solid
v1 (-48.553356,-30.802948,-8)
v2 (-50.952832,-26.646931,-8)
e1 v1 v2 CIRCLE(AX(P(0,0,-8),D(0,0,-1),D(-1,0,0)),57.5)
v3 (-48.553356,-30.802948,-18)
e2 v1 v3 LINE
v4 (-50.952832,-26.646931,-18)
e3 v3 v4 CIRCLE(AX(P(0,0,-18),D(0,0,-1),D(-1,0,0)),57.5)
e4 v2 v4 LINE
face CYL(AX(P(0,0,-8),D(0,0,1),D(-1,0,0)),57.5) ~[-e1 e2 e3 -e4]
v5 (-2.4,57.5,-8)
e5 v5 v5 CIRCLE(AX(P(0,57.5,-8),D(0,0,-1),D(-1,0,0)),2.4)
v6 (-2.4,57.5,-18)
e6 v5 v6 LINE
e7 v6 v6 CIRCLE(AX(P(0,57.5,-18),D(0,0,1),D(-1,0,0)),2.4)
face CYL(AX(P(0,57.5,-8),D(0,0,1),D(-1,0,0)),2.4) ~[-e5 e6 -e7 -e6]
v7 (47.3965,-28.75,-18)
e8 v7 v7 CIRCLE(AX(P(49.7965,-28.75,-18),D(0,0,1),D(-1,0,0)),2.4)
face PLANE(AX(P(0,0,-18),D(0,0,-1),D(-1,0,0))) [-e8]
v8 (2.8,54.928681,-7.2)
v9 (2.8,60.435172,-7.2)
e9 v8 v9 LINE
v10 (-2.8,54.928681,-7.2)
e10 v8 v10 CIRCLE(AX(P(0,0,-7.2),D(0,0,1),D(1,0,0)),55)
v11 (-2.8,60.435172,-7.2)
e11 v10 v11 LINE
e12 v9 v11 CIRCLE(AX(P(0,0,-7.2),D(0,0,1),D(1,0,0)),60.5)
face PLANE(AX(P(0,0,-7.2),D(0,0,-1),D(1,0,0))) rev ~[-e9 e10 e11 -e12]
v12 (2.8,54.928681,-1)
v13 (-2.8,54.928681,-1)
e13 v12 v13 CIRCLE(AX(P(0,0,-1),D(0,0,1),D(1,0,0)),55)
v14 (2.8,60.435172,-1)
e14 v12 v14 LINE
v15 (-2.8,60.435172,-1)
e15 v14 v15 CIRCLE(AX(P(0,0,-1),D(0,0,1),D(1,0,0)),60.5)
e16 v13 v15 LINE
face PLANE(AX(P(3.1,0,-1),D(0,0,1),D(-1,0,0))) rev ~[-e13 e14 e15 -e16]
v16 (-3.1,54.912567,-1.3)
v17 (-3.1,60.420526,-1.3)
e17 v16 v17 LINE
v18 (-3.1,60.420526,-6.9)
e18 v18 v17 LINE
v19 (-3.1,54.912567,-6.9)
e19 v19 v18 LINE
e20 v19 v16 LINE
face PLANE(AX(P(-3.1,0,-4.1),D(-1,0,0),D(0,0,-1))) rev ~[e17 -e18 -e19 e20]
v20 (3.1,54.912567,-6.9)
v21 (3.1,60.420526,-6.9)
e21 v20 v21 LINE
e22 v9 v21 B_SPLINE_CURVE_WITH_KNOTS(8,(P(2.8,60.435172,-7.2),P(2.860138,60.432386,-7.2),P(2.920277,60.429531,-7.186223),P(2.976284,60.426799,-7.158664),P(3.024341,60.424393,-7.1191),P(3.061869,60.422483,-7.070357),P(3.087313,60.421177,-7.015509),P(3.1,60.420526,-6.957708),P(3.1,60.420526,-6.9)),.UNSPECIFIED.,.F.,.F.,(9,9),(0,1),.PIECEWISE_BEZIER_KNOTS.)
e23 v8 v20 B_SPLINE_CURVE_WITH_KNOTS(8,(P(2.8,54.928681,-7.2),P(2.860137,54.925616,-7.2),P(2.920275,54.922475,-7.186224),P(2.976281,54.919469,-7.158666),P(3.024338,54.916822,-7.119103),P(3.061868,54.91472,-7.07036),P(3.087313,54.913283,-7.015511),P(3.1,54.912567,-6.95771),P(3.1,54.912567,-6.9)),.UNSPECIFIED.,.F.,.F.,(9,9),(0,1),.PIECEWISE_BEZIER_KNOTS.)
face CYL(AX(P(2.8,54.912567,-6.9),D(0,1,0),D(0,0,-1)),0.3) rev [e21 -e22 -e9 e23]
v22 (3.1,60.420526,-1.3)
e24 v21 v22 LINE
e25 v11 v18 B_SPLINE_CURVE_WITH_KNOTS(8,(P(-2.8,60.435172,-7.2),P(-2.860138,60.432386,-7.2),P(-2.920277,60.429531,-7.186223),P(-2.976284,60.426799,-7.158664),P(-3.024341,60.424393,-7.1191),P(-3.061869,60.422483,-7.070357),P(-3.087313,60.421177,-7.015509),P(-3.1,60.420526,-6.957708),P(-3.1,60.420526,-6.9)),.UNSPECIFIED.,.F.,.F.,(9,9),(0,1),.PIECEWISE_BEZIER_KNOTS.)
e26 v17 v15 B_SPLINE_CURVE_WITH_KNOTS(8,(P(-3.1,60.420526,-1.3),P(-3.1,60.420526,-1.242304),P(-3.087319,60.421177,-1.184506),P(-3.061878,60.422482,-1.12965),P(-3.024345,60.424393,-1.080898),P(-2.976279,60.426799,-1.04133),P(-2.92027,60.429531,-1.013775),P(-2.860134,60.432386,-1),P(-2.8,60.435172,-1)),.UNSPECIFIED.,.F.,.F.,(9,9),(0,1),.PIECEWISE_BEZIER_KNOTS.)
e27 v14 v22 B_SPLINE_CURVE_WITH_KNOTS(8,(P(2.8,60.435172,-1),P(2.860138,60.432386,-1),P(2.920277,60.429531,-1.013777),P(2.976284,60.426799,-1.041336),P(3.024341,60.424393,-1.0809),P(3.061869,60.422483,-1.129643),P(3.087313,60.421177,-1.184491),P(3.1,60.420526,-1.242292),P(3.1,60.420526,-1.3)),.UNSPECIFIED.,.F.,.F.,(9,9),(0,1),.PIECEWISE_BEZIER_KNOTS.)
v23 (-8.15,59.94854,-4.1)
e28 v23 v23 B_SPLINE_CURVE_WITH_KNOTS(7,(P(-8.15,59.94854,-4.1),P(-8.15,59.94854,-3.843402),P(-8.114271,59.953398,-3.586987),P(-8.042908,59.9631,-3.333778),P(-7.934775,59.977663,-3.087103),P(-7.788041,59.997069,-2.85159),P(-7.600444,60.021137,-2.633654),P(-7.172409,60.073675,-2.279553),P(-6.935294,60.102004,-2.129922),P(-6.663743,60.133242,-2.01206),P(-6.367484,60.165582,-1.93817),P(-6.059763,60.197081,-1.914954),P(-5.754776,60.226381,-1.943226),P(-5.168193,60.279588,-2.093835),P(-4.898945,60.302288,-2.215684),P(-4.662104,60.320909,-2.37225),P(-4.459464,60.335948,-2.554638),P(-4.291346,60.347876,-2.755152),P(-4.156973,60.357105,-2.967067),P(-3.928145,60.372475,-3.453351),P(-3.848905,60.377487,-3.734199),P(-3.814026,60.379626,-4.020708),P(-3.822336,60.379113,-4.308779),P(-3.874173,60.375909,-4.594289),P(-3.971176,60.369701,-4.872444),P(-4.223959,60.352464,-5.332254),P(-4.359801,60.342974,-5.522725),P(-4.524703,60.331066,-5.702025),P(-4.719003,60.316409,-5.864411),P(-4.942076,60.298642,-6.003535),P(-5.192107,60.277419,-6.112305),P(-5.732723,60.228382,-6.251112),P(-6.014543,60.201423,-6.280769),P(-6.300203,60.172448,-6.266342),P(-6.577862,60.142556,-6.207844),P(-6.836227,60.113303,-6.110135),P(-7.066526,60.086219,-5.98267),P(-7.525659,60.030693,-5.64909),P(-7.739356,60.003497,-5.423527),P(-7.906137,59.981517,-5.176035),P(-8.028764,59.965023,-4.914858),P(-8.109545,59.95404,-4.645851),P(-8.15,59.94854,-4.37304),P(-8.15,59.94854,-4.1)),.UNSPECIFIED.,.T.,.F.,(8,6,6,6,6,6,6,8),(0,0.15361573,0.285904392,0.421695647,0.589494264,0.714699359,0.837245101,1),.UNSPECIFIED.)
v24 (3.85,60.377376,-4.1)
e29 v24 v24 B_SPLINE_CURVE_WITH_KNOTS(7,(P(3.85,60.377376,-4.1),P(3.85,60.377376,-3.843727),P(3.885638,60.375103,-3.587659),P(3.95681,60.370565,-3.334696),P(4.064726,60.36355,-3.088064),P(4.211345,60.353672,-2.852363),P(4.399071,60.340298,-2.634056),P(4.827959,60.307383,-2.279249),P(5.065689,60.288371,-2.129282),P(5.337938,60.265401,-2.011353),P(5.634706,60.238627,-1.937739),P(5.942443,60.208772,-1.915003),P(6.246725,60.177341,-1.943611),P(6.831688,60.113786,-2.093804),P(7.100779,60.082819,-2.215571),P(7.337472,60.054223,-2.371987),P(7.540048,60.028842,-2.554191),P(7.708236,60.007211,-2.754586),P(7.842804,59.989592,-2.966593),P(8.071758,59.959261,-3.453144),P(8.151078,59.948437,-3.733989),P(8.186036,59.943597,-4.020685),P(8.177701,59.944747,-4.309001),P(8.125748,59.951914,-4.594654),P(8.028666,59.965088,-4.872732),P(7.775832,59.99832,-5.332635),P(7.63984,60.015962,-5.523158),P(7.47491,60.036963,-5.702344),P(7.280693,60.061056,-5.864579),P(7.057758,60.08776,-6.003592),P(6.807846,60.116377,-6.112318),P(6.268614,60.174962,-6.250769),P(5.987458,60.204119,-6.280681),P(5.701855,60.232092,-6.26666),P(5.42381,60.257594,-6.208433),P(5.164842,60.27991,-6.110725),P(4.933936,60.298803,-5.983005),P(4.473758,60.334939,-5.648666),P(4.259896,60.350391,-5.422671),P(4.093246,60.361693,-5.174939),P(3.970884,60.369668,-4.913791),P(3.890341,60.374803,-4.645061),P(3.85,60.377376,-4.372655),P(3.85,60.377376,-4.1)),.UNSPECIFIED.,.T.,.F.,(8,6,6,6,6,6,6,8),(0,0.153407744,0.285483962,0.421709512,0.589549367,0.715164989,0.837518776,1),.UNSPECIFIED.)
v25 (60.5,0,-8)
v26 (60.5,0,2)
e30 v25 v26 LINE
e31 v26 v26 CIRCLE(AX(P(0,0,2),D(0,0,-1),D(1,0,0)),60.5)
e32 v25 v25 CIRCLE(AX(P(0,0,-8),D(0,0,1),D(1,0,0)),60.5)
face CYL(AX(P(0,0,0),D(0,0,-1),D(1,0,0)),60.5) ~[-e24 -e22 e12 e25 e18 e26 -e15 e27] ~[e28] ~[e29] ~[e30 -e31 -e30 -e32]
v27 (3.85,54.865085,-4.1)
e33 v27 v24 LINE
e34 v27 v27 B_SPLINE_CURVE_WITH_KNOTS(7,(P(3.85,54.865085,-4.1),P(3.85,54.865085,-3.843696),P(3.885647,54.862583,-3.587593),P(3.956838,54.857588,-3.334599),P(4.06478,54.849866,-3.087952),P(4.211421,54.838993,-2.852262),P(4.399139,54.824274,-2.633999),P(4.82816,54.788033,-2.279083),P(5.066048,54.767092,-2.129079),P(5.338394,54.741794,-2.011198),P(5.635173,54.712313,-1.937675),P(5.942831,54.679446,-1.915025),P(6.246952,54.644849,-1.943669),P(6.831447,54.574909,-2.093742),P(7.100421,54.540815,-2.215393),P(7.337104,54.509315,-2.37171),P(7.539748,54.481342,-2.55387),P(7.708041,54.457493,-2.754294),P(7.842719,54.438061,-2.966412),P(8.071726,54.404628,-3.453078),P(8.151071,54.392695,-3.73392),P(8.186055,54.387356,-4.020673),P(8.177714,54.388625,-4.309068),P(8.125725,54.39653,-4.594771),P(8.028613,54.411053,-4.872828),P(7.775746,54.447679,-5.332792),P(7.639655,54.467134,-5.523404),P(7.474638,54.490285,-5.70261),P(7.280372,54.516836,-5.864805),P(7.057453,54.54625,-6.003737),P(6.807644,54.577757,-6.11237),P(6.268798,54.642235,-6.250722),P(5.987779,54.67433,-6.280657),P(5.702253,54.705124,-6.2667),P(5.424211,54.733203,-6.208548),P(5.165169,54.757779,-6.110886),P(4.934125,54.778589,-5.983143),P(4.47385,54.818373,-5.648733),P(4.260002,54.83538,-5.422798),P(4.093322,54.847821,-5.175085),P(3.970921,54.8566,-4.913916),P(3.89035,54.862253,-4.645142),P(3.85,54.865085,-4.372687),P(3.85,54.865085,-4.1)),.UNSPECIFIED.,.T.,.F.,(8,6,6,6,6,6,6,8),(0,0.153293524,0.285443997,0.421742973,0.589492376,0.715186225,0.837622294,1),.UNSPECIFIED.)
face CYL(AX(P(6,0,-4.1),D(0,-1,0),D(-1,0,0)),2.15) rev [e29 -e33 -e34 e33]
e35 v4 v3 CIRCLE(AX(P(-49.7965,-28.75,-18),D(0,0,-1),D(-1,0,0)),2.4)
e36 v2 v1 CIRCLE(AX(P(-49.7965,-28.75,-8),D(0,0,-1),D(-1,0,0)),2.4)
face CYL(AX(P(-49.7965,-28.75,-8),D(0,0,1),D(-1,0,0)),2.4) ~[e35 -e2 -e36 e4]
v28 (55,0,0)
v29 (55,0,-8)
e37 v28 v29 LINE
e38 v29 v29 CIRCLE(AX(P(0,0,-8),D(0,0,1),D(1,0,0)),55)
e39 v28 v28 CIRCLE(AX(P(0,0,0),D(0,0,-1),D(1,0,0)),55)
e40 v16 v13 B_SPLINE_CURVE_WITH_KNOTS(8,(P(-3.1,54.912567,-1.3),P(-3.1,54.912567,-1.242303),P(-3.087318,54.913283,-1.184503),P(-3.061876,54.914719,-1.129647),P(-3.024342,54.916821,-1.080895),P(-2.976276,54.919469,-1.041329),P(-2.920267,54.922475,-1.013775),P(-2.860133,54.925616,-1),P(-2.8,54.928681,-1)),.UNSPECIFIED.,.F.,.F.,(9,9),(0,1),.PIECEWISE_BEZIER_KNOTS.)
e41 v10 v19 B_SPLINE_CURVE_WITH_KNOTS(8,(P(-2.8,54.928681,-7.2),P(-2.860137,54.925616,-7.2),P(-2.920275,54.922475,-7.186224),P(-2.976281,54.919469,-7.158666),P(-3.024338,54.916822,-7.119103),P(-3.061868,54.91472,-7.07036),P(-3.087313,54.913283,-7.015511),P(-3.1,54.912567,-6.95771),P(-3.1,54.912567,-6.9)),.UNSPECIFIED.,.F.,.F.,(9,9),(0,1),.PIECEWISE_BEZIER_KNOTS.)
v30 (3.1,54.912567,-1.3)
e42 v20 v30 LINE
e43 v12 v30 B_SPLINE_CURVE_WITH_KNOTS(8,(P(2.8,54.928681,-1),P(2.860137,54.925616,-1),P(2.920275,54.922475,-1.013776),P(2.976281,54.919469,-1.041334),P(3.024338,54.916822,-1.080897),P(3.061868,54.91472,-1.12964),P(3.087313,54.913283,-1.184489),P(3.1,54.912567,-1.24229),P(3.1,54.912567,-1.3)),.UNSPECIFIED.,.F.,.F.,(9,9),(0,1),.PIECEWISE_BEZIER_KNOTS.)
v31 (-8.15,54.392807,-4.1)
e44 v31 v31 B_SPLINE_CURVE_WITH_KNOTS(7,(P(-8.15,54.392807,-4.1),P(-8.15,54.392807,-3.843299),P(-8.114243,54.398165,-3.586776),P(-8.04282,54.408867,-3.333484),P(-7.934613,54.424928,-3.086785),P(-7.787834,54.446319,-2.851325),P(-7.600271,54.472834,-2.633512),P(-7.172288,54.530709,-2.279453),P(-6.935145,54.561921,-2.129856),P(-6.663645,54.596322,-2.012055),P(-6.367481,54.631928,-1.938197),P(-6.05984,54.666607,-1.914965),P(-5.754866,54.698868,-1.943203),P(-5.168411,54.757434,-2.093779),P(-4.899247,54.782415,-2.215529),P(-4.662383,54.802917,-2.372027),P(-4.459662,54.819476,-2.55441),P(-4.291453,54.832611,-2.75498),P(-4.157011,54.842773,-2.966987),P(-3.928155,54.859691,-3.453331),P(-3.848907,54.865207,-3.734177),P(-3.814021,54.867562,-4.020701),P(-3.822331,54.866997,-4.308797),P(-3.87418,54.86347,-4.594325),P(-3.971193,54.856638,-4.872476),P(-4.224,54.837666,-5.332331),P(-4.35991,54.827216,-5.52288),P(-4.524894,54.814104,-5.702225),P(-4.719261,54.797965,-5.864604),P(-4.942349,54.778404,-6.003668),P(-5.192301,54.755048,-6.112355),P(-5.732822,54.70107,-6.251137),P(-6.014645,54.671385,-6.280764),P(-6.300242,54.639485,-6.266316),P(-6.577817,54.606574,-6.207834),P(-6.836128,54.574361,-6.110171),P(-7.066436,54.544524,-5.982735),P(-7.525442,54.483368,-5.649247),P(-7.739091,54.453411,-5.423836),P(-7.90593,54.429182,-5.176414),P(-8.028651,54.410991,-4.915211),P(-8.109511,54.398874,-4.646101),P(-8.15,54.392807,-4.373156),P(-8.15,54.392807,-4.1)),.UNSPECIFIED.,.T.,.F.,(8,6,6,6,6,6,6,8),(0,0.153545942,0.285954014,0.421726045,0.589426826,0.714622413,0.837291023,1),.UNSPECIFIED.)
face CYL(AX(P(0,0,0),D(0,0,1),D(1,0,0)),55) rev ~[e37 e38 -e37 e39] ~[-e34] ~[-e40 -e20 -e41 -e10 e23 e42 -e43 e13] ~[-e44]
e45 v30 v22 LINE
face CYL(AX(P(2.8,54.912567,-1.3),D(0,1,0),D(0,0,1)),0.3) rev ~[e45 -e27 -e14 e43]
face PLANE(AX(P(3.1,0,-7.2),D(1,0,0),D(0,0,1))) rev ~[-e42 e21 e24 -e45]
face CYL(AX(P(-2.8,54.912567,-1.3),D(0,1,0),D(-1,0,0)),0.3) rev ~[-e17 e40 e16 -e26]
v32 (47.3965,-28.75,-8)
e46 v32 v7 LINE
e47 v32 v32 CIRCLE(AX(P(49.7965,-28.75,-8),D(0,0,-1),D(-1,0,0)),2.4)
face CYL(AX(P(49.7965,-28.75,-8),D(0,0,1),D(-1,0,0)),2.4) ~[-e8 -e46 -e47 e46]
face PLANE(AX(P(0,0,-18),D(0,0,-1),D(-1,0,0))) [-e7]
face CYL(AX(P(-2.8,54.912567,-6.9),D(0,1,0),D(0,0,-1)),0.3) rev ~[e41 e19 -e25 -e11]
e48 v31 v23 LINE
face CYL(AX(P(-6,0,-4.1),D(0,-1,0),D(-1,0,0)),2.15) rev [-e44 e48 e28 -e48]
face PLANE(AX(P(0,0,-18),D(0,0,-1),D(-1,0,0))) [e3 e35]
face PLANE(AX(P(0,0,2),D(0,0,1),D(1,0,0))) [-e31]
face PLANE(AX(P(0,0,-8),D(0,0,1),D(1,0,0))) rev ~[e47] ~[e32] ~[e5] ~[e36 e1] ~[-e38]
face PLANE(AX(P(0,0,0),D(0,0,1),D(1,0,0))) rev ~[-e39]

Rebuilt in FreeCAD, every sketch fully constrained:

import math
import FreeCAD as App
import Part
import Sketcher
Q = App.Units.Quantity


def edges_at(feature, points):
    """Names of the edges that pass closest to the given points."""
    edges = feature.Shape.Edges
    near = lambda p: min(range(len(edges)), key=lambda i: edges[i].distToShape(Part.Vertex(*p))[0])
    return sorted({f"Edge{near(p) + 1}" for p in points})


def add_polygon(sketch, points):
    """Adds a closed chain of lines whose ends are joined by coincident constraints."""
    first, n = sketch.GeometryCount, len(points)
    for a, b in zip(points, points[1:] + points[:1]):
        sketch.addGeometry(Part.LineSegment(App.Vector(*a, 0), App.Vector(*b, 0)), False)
    for i in range(n):
        sketch.addConstraint(Sketcher.Constraint("Coincident", first + i, 2, first + (i + 1) % n, 1))

doc = App.newDocument("Part")
body = doc.addObject("PartDesign::Body", "Body")

# Sketch on XY plane
sketch1 = body.newObject("Sketcher::SketchObject", "Sketch")
sketch1.AttachmentSupport = (doc.getObject("XY_Plane"), [""])
sketch1.MapMode = "FlatFace"
sketch1.addGeometry(Part.Circle(App.Vector(0, 0, 0), App.Vector(0, 0, 1), 60), False)
sketch1.addConstraint([
    Sketcher.Constraint("Coincident", 0, 3, -1, 1),
    Sketcher.Constraint("Diameter", 0, Q("121 mm")),
])
pad1 = body.newObject("PartDesign::Pad", "Pad")
pad1.Profile = sketch1
pad1.Length = 2

# Sketch on XY plane
sketch2 = body.newObject("Sketcher::SketchObject", "Sketch001")
sketch2.AttachmentSupport = (doc.getObject("XY_Plane"), [""])
sketch2.MapMode = "FlatFace"
sketch2.addGeometry([
    Part.Circle(App.Vector(0, 0, 0), App.Vector(0, 0, 1), 60),
    Part.Circle(App.Vector(0, 0, 0), App.Vector(0, 0, 1), 55),
], False)
sketch2.addConstraint([
    Sketcher.Constraint("Coincident", 0, 3, -1, 1),
    Sketcher.Constraint("Coincident", 1, 3, -1, 1),
    Sketcher.Constraint("Diameter", 0, Q("121 mm")),
    Sketcher.Constraint("Diameter", 1, Q("110 mm")),
])
pad2 = body.newObject("PartDesign::Pad", "Pad001")
pad2.Profile = sketch2
pad2.Length = 8
pad2.Reversed = True

# Sketch on XZ plane
sketch3 = body.newObject("Sketcher::SketchObject", "Sketch002")
sketch3.AttachmentSupport = (doc.getObject("XZ_Plane"), [""])
sketch3.MapMode = "FlatFace"
add_polygon(sketch3, [(3.1, -7.2), (-3.1, -7.2), (-3.1, -1), (3.1, -1)])  # lines 0-3
sketch3.addGeometry(Part.Circle(App.Vector(6, -4.1, 0), App.Vector(0, 0, 1), 2.1), False)  # 4
sketch3.addGeometry(Part.Circle(App.Vector(-6, -4.1, 0), App.Vector(0, 0, 1), 2.1), False)  # 5
sketch3.addConstraint([
    Sketcher.Constraint("Horizontal", 0),
    Sketcher.Constraint("Vertical", 1),
    Sketcher.Constraint("Horizontal", 2),
    Sketcher.Constraint("Vertical", 3),
    Sketcher.Constraint("Equal", 4, 5),
    Sketcher.Constraint("Symmetric", 4, 3, 5, 3, -2),
    Sketcher.Constraint("Equal", 2, 1),
    Sketcher.Constraint("Diameter", 4, Q("4.3 mm")),
    Sketcher.Constraint("DistanceX", 0, 2, 0, 1, Q("6.2 mm")),
    Sketcher.Constraint("DistanceX", -1, 1, 4, 3, Q("6 mm")),
    Sketcher.Constraint("DistanceY", 1, 2, -1, 1, Q("1 mm")),
    Sketcher.Constraint("DistanceX", 0, 2, -1, 1, Q("3.1 mm")),
    Sketcher.Constraint("DistanceY", 0, 2, 5, 3, Q("3.1 mm")),
])
pocket1 = body.newObject("PartDesign::Pocket", "Pocket")
pocket1.Profile = sketch3
pocket1.Type = "ThroughAll"
doc.recompute()

fillet = body.newObject("PartDesign::Fillet", "Fillet")
fillet.Base = (pocket1, edges_at(pocket1, [
    (-3.1, 57.666, -1),
    (3.1, 57.666, -1),
    (3.1, 57.666, -7.2),
    (-3.1, 57.666, -7.2),
]))
fillet.Radius = 0.3

# Sketch on XY plane
sketch4 = body.newObject("Sketcher::SketchObject", "Sketch003")
sketch4.AttachmentSupport = (doc.getObject("XY_Plane"), [""])
sketch4.MapMode = "FlatFace"
sketch4.AttachmentOffset = App.Placement(App.Vector(0, 0, -8), App.Rotation())
sketch4.addGeometry([
    Part.Circle(App.Vector(0, 57.5, 0), App.Vector(0, 0, 1), 2.4),
    Part.ArcOfCircle(Part.Circle(App.Vector(0, 0, 0), App.Vector(0, 0, 1), 57.5), math.radians(-152.39), math.radians(-147.61)),
    Part.ArcOfCircle(Part.Circle(App.Vector(-49.8, -28.8, 0), App.Vector(0, 0, 1), 2.4), math.radians(-59), math.radians(119)),
    Part.Circle(App.Vector(49.8, -28.8, 0), App.Vector(0, 0, 1), 2.4),
], False)
sketch4.addConstraint([
    Sketcher.Constraint("Coincident", 1, 1, 2, 2),
    Sketcher.Constraint("Coincident", 2, 1, 1, 2),
    Sketcher.Constraint("Coincident", 1, 3, -1, 1),
    Sketcher.Constraint("Equal", 0, 2),
    Sketcher.Constraint("Equal", 2, 3),
    Sketcher.Constraint("Symmetric", 2, 3, 3, 3, -2),
    Sketcher.Constraint("PointOnObject", 0, 3, -2),
    Sketcher.Constraint("Diameter", 0, Q("4.8 mm")),
    Sketcher.Constraint("Radius", 1, Q("57.5 mm")),
    Sketcher.Constraint("DistanceY", -1, 1, 0, 3, Q("57.5 mm")),
    Sketcher.Constraint("DistanceY", 2, 3, -1, 1, Q("28.75 mm")),
    Sketcher.Constraint("DistanceY", 1, 1, -1, 1, Q("26.647 mm")),
])
pad3 = body.newObject("PartDesign::Pad", "Pad002")
pad3.Profile = sketch4
pad3.Length = 10
pad3.Reversed = True

doc.recompute()
